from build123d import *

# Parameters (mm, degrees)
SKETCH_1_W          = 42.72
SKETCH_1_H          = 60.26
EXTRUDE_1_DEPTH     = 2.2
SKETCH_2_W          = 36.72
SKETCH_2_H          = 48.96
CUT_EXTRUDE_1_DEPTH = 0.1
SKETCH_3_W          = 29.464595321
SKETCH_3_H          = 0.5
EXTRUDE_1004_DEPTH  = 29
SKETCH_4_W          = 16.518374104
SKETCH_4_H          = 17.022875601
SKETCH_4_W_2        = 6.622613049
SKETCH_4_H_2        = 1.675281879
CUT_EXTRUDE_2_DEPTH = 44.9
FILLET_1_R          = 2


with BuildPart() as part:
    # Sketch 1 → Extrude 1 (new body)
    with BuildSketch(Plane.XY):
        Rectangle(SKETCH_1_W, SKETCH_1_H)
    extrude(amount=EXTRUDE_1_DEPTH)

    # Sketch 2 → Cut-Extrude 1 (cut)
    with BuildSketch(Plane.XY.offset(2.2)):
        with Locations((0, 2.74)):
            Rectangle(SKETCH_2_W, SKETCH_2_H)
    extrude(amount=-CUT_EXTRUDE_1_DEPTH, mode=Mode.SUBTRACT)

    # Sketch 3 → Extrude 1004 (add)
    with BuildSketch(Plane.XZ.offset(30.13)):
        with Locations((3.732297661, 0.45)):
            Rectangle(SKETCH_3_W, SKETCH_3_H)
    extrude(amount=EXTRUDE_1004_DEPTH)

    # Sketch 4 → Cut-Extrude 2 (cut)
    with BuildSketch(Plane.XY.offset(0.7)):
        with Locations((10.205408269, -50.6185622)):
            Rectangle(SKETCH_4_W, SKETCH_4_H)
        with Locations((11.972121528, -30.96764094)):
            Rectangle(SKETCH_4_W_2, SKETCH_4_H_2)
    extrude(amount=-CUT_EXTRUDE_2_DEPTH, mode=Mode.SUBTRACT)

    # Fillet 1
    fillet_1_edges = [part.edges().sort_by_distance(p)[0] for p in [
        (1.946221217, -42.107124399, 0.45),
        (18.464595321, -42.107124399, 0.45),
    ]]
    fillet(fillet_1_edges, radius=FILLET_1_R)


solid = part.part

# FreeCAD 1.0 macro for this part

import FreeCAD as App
import Part
import Sketcher

V = App.Vector
Q = App.Units.Quantity


def edges_at(feature, points):
    """Names of the edges that pass closest to the given points."""
    edges = feature.Shape.Edges
    near = lambda p: min(range(len(edges)), key=lambda i: edges[i].distToShape(Part.Vertex(*p))[0])
    return sorted({f"Edge{near(p) + 1}" for p in points})

doc = App.newDocument("Part")
params = doc.addObject("Spreadsheet::Sheet", "Params")
for row, (alias, value) in enumerate([
    ("sketch1_width", "42.72 mm"),
    ("sketch1_height", "60.26 mm"),
    ("pad1_length", "2.2 mm"),
    ("sketch2_width", "36.72 mm"),
    ("sketch2_height", "48.96 mm"),
    ("pocket1_length", "0.1 mm"),
    ("sketch3_height", "0.5 mm"),
    ("pad2_length", "29 mm"),
    ("pocket2_length", "44.9 mm"),
    ("fillet_radius", "2 mm"),
], start=1):
    params.set(f"A{row}", alias)
    params.set(f"B{row}", "=" + value)
    params.setAlias(f"B{row}", alias)

body = doc.addObject("PartDesign::Body", "Body")

sketch1 = doc.addObject("Sketcher::SketchObject", "Sketch")
body.addObject(sketch1)
sketch1.AttachmentSupport = (doc.XY_Plane, [""])
sketch1.MapMode = "FlatFace"
sketch1.addGeometry([
    Part.LineSegment(V(-21, 30, 0), V(-21, -30, 0)),
    Part.LineSegment(V(-21, -30, 0), V(21, -30, 0)),
    Part.LineSegment(V(21, -30, 0), V(21, 30, 0)),
    Part.LineSegment(V(21, 30, 0), V(-21, 30, 0)),
], False)
sketch1.addConstraint([
    Sketcher.Constraint("Coincident", 0, 2, 1, 1),
    Sketcher.Constraint("Coincident", 1, 2, 2, 1),
    Sketcher.Constraint("Coincident", 2, 2, 3, 1),
    Sketcher.Constraint("Coincident", 3, 2, 0, 1),
    Sketcher.Constraint("Vertical", 0),
    Sketcher.Constraint("Horizontal", 1),
    Sketcher.Constraint("Vertical", 2),
    Sketcher.Constraint("Horizontal", 3),
    Sketcher.Constraint("Symmetric", 0, 2, 2, 2, -1, 1),
    Sketcher.Constraint("DistanceX", 1, 1, 1, 2, Q("42.72 mm")),
    Sketcher.Constraint("DistanceY", 0, 2, 0, 1, Q("60.26 mm")),
])
sketch1.setExpression("Constraints[9]", "Params.sketch1_width")
sketch1.setExpression("Constraints[10]", "Params.sketch1_height")
pad1 = doc.addObject("PartDesign::Pad", "Pad")
body.addObject(pad1)
pad1.Profile = sketch1
pad1.setExpression("Length", "Params.pad1_length")

sketch2 = doc.addObject("Sketcher::SketchObject", "Sketch001")
body.addObject(sketch2)
sketch2.AttachmentSupport = (doc.XY_Plane, [""])
sketch2.MapMode = "FlatFace"
sketch2.AttachmentOffset = App.Placement(V(0, 0, 2.2), App.Rotation())
sketch2.addGeometry([
    Part.LineSegment(V(-18, 27, 0), V(-18, -22, 0)),
    Part.LineSegment(V(-18, -22, 0), V(18, -22, 0)),
    Part.LineSegment(V(18, -22, 0), V(18, 27, 0)),
    Part.LineSegment(V(18, 27, 0), V(-18, 27, 0)),
], False)
sketch2.addConstraint([
    Sketcher.Constraint("Coincident", 0, 2, 1, 1),
    Sketcher.Constraint("Coincident", 1, 2, 2, 1),
    Sketcher.Constraint("Coincident", 2, 2, 3, 1),
    Sketcher.Constraint("Coincident", 3, 2, 0, 1),
    Sketcher.Constraint("Vertical", 0),
    Sketcher.Constraint("Horizontal", 1),
    Sketcher.Constraint("Vertical", 2),
    Sketcher.Constraint("Horizontal", 3),
    Sketcher.Constraint("DistanceX", 1, 1, 1, 2, Q("36.72 mm")),
    Sketcher.Constraint("DistanceY", 0, 2, 0, 1, Q("48.96 mm")),
    Sketcher.Constraint("DistanceX", 0, 2, -1, 1, Q("18.36 mm")),
    Sketcher.Constraint("DistanceY", 0, 2, -1, 1, Q("21.74 mm")),
])
sketch2.setExpression("Constraints[8]", "Params.sketch2_width")
sketch2.setExpression("Constraints[9]", "Params.sketch2_height")
pocket1 = doc.addObject("PartDesign::Pocket", "Pocket")
body.addObject(pocket1)
pocket1.Profile = sketch2
pocket1.setExpression("Length", "Params.pocket1_length")

sketch3 = doc.addObject("Sketcher::SketchObject", "Sketch002")
body.addObject(sketch3)
sketch3.AttachmentSupport = (doc.XZ_Plane, [""])
sketch3.MapMode = "FlatFace"
sketch3.AttachmentOffset = App.Placement(V(0, 0, 30.13), App.Rotation())
sketch3.addGeometry([
    Part.LineSegment(V(-11, 0.7, 0), V(-11, 0.2, 0)),
    Part.LineSegment(V(-11, 0.2, 0), V(18.46, 0.2, 0)),
    Part.LineSegment(V(18.46, 0.2, 0), V(18.46, 0.7, 0)),
    Part.LineSegment(V(18.46, 0.7, 0), V(-11, 0.7, 0)),
], False)
sketch3.addConstraint([
    Sketcher.Constraint("Coincident", 0, 2, 1, 1),
    Sketcher.Constraint("Coincident", 1, 2, 2, 1),
    Sketcher.Constraint("Coincident", 2, 2, 3, 1),
    Sketcher.Constraint("Coincident", 3, 2, 0, 1),
    Sketcher.Constraint("Vertical", 0),
    Sketcher.Constraint("Horizontal", 1),
    Sketcher.Constraint("Vertical", 2),
    Sketcher.Constraint("Horizontal", 3),
    Sketcher.Constraint("DistanceY", 0, 2, 0, 1, Q("0.5 mm")),
    Sketcher.Constraint("DistanceX", 0, 2, -1, 1, Q("11 mm")),
    Sketcher.Constraint("DistanceY", -1, 1, 0, 2, Q("0.2 mm")),
    Sketcher.Constraint("DistanceX", 1, 1, 1, 2, Q("29.464595 mm")),
])
sketch3.setExpression("Constraints[8]", "Params.sketch3_height")
pad2 = doc.addObject("PartDesign::Pad", "Pad001")
body.addObject(pad2)
pad2.Profile = sketch3
pad2.setExpression("Length", "Params.pad2_length")

sketch4 = doc.addObject("Sketcher::SketchObject", "Sketch003")
body.addObject(sketch4)
sketch4.AttachmentSupport = (doc.XY_Plane, [""])
sketch4.MapMode = "FlatFace"
sketch4.AttachmentOffset = App.Placement(V(0, 0, 0.7), App.Rotation())
sketch4.addGeometry([
    Part.LineSegment(V(1.9, -42.1, 0), V(1.9, -59.1, 0)),
    Part.LineSegment(V(1.9, -59.1, 0), V(18.5, -59.1, 0)),
    Part.LineSegment(V(18.5, -59.1, 0), V(18.5, -42.1, 0)),
    Part.LineSegment(V(18.5, -42.1, 0), V(1.9, -42.1, 0)),
    Part.LineSegment(V(8.7, -30.1, 0), V(8.7, -31.8, 0)),
    Part.LineSegment(V(8.7, -31.8, 0), V(15.3, -31.8, 0)),
    Part.LineSegment(V(15.3, -31.8, 0), V(15.3, -30.1, 0)),
    Part.LineSegment(V(15.3, -30.1, 0), V(8.7, -30.1, 0)),
], False)
sketch4.addConstraint([
    Sketcher.Constraint("Coincident", 0, 2, 1, 1),
    Sketcher.Constraint("Coincident", 1, 2, 2, 1),
    Sketcher.Constraint("Coincident", 2, 2, 3, 1),
    Sketcher.Constraint("Coincident", 3, 2, 0, 1),
    Sketcher.Constraint("Coincident", 4, 2, 5, 1),
    Sketcher.Constraint("Coincident", 5, 2, 6, 1),
    Sketcher.Constraint("Coincident", 6, 2, 7, 1),
    Sketcher.Constraint("Coincident", 7, 2, 4, 1),
    Sketcher.Constraint("Vertical", 0),
    Sketcher.Constraint("Horizontal", 1),
    Sketcher.Constraint("Vertical", 2),
    Sketcher.Constraint("Horizontal", 3),
    Sketcher.Constraint("Vertical", 4),
    Sketcher.Constraint("Horizontal", 5),
    Sketcher.Constraint("Vertical", 6),
    Sketcher.Constraint("Horizontal", 7),
    Sketcher.Constraint("DistanceY", 1, 2, 6, 2, Q("29 mm")),
    Sketcher.Constraint("DistanceY", 0, 2, -1, 1, Q("59.13 mm")),
    Sketcher.Constraint("DistanceY", 4, 2, 4, 1, Q("1.675282 mm")),
    Sketcher.Constraint("DistanceX", 1, 1, 1, 2, Q("16.518374 mm")),
    Sketcher.Constraint("DistanceX", 5, 1, 5, 2, Q("6.622613 mm")),
    Sketcher.Constraint("DistanceY", 0, 2, 0, 1, Q("17.022876 mm")),
    Sketcher.Constraint("DistanceX", -1, 1, 0, 2, Q("1.946221 mm")),
    Sketcher.Constraint("DistanceX", -1, 1, 5, 2, Q("15.283428 mm")),
])
pocket2 = doc.addObject("PartDesign::Pocket", "Pocket001")
body.addObject(pocket2)
pocket2.Profile = sketch4
pocket2.setExpression("Length", "Params.pocket2_length")
doc.recompute()

fillet = doc.addObject("PartDesign::Fillet", "Fillet")
body.addObject(fillet)
fillet.Base = (pocket2, edges_at(pocket2, [(1.946, -42.107, 0.45), (18.465, -42.107, 0.45)]))
fillet.setExpression("Radius", "Params.fillet_radius")

doc.recompute()
